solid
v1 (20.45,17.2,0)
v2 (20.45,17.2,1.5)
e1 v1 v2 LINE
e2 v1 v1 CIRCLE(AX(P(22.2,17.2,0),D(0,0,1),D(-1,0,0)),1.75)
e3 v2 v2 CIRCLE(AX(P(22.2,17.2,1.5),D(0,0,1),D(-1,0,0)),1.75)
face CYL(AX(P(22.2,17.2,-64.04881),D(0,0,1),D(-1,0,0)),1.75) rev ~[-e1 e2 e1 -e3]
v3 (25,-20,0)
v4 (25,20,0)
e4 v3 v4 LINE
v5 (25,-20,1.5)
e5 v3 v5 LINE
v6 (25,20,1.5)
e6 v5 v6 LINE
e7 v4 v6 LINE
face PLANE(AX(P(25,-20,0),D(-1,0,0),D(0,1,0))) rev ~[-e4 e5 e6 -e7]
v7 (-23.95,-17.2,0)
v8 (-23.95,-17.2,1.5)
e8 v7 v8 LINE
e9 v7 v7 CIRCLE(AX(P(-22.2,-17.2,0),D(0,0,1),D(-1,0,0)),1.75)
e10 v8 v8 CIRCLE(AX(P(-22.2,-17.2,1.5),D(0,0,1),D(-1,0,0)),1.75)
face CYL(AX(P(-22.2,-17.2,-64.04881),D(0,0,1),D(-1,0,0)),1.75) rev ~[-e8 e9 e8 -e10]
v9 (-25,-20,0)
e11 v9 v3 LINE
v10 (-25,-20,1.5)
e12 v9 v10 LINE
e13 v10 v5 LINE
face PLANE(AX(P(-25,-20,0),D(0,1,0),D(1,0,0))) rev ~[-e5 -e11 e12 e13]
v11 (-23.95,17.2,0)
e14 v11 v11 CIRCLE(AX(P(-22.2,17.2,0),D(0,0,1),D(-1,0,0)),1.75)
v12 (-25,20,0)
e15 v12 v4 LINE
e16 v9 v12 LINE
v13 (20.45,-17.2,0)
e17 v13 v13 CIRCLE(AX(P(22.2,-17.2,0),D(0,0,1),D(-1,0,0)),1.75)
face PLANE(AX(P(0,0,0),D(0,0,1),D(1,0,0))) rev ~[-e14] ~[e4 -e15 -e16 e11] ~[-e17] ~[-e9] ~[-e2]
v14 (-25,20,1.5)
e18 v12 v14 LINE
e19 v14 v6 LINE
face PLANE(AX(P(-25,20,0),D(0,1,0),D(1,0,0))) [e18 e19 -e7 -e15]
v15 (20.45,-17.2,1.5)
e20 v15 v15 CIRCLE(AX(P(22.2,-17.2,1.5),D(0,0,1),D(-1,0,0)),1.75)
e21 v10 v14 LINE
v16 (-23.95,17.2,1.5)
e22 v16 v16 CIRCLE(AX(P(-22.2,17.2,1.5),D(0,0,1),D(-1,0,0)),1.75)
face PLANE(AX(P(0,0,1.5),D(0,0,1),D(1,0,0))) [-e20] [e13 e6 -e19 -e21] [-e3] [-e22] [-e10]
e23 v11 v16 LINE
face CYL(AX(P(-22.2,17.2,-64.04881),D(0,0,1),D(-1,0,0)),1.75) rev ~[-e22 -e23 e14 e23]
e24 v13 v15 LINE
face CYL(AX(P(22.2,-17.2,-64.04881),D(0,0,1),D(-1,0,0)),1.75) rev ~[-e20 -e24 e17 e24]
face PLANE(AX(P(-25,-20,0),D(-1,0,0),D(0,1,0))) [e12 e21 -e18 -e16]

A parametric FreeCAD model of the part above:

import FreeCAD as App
import Part
import Sketcher

V = App.Vector
Q = App.Units.Quantity

doc = App.newDocument("Part")
body = doc.addObject("PartDesign::Body", "Body")

sketch1 = body.newObject("Sketcher::SketchObject", "Sketch")
sketch1.AttachmentSupport = (doc.getObject("XY_Plane"), [""])
sketch1.MapMode = "FlatFace"
sketch1.addGeometry([
    Part.LineSegment(V(-25, 20, 0), V(-25, -20, 0)),
    Part.LineSegment(V(-25, -20, 0), V(25, -20, 0)),
    Part.LineSegment(V(25, -20, 0), V(25, 20, 0)),
    Part.LineSegment(V(25, 20, 0), V(-25, 20, 0)),
], False)
sketch1.addConstraint([
    Sketcher.Constraint("Coincident", 0, 2, 1, 1),
    Sketcher.Constraint("Coincident", 1, 2, 2, 1),
    Sketcher.Constraint("Coincident", 2, 2, 3, 1),
    Sketcher.Constraint("Coincident", 3, 2, 0, 1),
    Sketcher.Constraint("Vertical", 0),
    Sketcher.Constraint("Horizontal", 1),
    Sketcher.Constraint("Vertical", 2),
    Sketcher.Constraint("Horizontal", 3),
    Sketcher.Constraint("Symmetric", 0, 2, 2, 2, -1, 1),
    Sketcher.Constraint("DistanceX", 1, 1, 1, 2, Q("50 mm")),
    Sketcher.Constraint("DistanceY", 0, 2, 0, 1, Q("40 mm")),
])
pad1 = body.newObject("PartDesign::Pad", "Pad")
pad1.Profile = sketch1
pad1.Length = 1.5

sketch2 = body.newObject("Sketcher::SketchObject", "Sketch001")
sketch2.AttachmentSupport = (doc.getObject("XY_Plane"), [""])
sketch2.MapMode = "FlatFace"
sketch2.addGeometry([
    Part.Circle(V(-22.2, -17.2, 0), V(0, 0, 1), 1.75),
    Part.Circle(V(-22.2, 17.2, 0), V(0, 0, 1), 1.75),
    Part.Circle(V(22.2, -17.2, 0), V(0, 0, 1), 1.75),
    Part.Circle(V(22.2, 17.2, 0), V(0, 0, 1), 1.75),
], False)
sketch2.addConstraint([
    Sketcher.Constraint("Equal", 0, 1),
    Sketcher.Constraint("Equal", 1, 2),
    Sketcher.Constraint("Equal", 2, 3),
    Sketcher.Constraint("Symmetric", 1, 3, 2, 3, -1, 1),
    Sketcher.Constraint("Symmetric", 0, 3, 3, 3, -1, 1),
    Sketcher.Constraint("Symmetric", 0, 3, 2, 3, -2),
    Sketcher.Constraint("Diameter", 0, Q("3.5 mm")),
    Sketcher.Constraint("DistanceX", 0, 3, -1, 1, Q("22.2 mm")),
    Sketcher.Constraint("DistanceY", 0, 3, -1, 1, Q("17.2 mm")),
])
doc.recompute()
hole = body.newObject("PartDesign::Hole", "Hole")
hole.Profile = sketch2
hole.ThreadType = "None"
hole.Diameter = 3.5
hole.DepthType = "ThroughAll"
hole.Reversed = True

doc.recompute()
